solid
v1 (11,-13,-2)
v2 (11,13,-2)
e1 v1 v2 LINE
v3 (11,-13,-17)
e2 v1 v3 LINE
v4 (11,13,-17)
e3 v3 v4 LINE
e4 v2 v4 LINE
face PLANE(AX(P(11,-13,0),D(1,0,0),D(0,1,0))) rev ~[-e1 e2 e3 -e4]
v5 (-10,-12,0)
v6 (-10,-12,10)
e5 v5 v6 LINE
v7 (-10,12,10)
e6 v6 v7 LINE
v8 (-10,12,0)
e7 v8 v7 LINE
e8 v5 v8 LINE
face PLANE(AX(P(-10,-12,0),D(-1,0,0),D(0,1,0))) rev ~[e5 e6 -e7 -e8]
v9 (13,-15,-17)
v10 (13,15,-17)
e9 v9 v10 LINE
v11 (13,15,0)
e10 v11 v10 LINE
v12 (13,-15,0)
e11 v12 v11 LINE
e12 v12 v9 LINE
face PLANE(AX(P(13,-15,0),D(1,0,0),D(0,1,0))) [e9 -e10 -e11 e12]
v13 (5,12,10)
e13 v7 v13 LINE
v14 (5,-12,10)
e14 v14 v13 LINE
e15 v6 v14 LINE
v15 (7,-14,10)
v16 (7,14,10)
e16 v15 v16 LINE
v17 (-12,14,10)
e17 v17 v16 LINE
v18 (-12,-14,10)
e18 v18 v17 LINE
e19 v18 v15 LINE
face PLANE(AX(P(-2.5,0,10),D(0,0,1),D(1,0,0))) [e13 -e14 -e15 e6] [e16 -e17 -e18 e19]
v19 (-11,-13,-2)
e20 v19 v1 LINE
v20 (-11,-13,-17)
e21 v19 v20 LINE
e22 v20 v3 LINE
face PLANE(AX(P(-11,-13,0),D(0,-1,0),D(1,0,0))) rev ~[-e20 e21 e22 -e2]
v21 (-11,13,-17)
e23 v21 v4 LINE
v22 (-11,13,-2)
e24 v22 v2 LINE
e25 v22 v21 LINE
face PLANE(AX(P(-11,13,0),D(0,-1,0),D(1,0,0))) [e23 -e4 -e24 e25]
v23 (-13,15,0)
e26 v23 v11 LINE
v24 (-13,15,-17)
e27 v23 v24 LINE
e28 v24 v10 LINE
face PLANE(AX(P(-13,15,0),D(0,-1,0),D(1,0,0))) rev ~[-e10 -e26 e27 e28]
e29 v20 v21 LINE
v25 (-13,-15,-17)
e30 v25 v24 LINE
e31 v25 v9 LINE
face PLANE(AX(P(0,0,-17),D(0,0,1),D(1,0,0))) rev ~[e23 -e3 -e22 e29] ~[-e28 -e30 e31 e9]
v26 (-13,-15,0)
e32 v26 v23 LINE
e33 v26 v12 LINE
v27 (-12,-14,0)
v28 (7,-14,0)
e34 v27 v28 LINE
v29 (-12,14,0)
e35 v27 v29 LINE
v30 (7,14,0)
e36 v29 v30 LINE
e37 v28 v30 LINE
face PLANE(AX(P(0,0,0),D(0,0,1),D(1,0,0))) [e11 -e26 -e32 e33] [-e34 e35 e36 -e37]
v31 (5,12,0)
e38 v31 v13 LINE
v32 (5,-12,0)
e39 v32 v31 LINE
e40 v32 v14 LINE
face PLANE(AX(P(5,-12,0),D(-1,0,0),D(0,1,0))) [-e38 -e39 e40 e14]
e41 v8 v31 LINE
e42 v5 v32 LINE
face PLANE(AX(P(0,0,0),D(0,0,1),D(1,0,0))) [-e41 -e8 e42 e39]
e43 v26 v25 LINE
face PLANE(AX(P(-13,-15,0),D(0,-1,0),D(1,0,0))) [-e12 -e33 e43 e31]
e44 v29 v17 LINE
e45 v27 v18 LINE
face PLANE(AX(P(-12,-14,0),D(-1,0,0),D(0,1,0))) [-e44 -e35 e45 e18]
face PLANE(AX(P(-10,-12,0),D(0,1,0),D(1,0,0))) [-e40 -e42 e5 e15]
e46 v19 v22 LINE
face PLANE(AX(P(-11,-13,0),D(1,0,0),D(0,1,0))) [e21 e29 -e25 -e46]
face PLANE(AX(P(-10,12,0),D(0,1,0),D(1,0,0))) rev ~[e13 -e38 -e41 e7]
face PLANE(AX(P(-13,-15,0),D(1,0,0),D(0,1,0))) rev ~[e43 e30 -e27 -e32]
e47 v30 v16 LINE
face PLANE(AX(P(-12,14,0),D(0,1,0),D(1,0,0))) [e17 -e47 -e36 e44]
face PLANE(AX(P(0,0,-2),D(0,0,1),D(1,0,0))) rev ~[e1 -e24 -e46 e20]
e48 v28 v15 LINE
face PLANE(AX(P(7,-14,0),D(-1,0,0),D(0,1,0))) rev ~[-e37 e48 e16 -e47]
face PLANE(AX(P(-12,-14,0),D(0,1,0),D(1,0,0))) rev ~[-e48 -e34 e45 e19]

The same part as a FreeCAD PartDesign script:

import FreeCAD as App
import Part
import Sketcher

V = App.Vector


def add_polygon(sketch, points):
    """Adds a closed chain of lines whose ends are joined by coincident constraints."""
    first, n = sketch.GeometryCount, len(points)
    for a, b in zip(points, points[1:] + points[:1]):
        sketch.addGeometry(Part.LineSegment(App.Vector(*a, 0), App.Vector(*b, 0)), False)
    for i in range(n):
        sketch.addConstraint(Sketcher.Constraint("Coincident", first + i, 2, first + (i + 1) % n, 1))

doc = App.newDocument("Part")
body = doc.addObject("PartDesign::Body", "Body")

# Sketch on XY plane
sketch1 = doc.addObject("Sketcher::SketchObject", "Sketch")
body.addObject(sketch1)
sketch1.AttachmentSupport = (doc.XY_Plane, [""])
sketch1.MapMode = "FlatFace"
add_polygon(sketch1, [(-13, 15), (-13, -15), (13, -15), (13, 15)])  # lines 0-3
add_polygon(sketch1, [(11, -13), (-11, -13), (-11, 13), (11, 13)])  # lines 4-7
sketch1.addConstraint(Sketcher.Constraint("Vertical", 0))
sketch1.addConstraint(Sketcher.Constraint("Horizontal", 1))
sketch1.addConstraint(Sketcher.Constraint("Vertical", 2))
sketch1.addConstraint(Sketcher.Constraint("Horizontal", 3))
sketch1.addConstraint(Sketcher.Constraint("Horizontal", 4))
sketch1.addConstraint(Sketcher.Constraint("Vertical", 5))
sketch1.addConstraint(Sketcher.Constraint("Horizontal", 6))
sketch1.addConstraint(Sketcher.Constraint("Vertical", 7))
sketch1.addConstraint(Sketcher.Constraint("Symmetric", 0, 2, 2, 2, -1, 1))
sketch1.addConstraint(Sketcher.Constraint("Symmetric", 4, 2, 6, 2, -1, 1))
sketch1.addConstraint(Sketcher.Constraint("Equal", 3, 5))
sketch1.addConstraint(Sketcher.Constraint("DistanceX", 1, 1, 1, 2, 26.0))
sketch1.addConstraint(Sketcher.Constraint("DistanceX", 4, 2, 4, 1, 22.0))
sketch1.addConstraint(Sketcher.Constraint("DistanceY", 0, 2, 0, 1, 30.0))
pad1 = doc.addObject("PartDesign::Pad", "Pad")
body.addObject(pad1)
pad1.Profile = sketch1
pad1.Length = 17
pad1.Reversed = True

# Sketch on XY plane
sketch2 = doc.addObject("Sketcher::SketchObject", "Sketch001")
body.addObject(sketch2)
sketch2.AttachmentSupport = (doc.XY_Plane, [""])
sketch2.MapMode = "FlatFace"
add_polygon(sketch2, [(-11, 13), (-11, -13), (11, -13), (11, 13)])  # lines 0-3
sketch2.addConstraint(Sketcher.Constraint("Vertical", 0))
sketch2.addConstraint(Sketcher.Constraint("Horizontal", 1))
sketch2.addConstraint(Sketcher.Constraint("Vertical", 2))
sketch2.addConstraint(Sketcher.Constraint("Horizontal", 3))
sketch2.addConstraint(Sketcher.Constraint("Symmetric", 0, 2, 2, 2, -1, 1))
sketch2.addConstraint(Sketcher.Constraint("DistanceX", 1, 1, 1, 2, 22.0))
sketch2.addConstraint(Sketcher.Constraint("DistanceY", 0, 2, 0, 1, 26.0))
pad2 = doc.addObject("PartDesign::Pad", "Pad001")
body.addObject(pad2)
pad2.Profile = sketch2
pad2.Length = 2
pad2.Reversed = True

# Sketch on XY plane
sketch3 = doc.addObject("Sketcher::SketchObject", "Sketch002")
body.addObject(sketch3)
sketch3.AttachmentSupport = (doc.XY_Plane, [""])
sketch3.MapMode = "FlatFace"
add_polygon(sketch3, [(-12, 14), (-12, -14), (7, -14), (7, 14)])  # lines 0-3
add_polygon(sketch3, [(5, -12), (-10, -12), (-10, 12), (5, 12)])  # lines 4-7
sketch3.addConstraint(Sketcher.Constraint("Vertical", 0))
sketch3.addConstraint(Sketcher.Constraint("Horizontal", 1))
sketch3.addConstraint(Sketcher.Constraint("Vertical", 2))
sketch3.addConstraint(Sketcher.Constraint("Horizontal", 3))
sketch3.addConstraint(Sketcher.Constraint("Horizontal", 4))
sketch3.addConstraint(Sketcher.Constraint("Vertical", 5))
sketch3.addConstraint(Sketcher.Constraint("Horizontal", 6))
sketch3.addConstraint(Sketcher.Constraint("Vertical", 7))
sketch3.addConstraint(Sketcher.Constraint("DistanceX", 1, 1, 1, 2, 19.0))
sketch3.addConstraint(Sketcher.Constraint("DistanceX", 4, 2, 4, 1, 15.0))
sketch3.addConstraint(Sketcher.Constraint("DistanceY", 0, 2, 0, 1, 28.0))
sketch3.addConstraint(Sketcher.Constraint("DistanceY", 5, 1, 5, 2, 24.0))
sketch3.addConstraint(Sketcher.Constraint("DistanceX", 0, 2, -1, 1, 12.0))
sketch3.addConstraint(Sketcher.Constraint("DistanceY", 0, 2, -1, 1, 14.0))
sketch3.addConstraint(Sketcher.Constraint("DistanceX", 4, 2, -1, 1, 10.0))
sketch3.addConstraint(Sketcher.Constraint("DistanceY", 4, 2, -1, 1, 12.0))
pad3 = doc.addObject("PartDesign::Pad", "Pad002")
body.addObject(pad3)
pad3.Profile = sketch3
pad3.Length = 10

doc.recompute()
